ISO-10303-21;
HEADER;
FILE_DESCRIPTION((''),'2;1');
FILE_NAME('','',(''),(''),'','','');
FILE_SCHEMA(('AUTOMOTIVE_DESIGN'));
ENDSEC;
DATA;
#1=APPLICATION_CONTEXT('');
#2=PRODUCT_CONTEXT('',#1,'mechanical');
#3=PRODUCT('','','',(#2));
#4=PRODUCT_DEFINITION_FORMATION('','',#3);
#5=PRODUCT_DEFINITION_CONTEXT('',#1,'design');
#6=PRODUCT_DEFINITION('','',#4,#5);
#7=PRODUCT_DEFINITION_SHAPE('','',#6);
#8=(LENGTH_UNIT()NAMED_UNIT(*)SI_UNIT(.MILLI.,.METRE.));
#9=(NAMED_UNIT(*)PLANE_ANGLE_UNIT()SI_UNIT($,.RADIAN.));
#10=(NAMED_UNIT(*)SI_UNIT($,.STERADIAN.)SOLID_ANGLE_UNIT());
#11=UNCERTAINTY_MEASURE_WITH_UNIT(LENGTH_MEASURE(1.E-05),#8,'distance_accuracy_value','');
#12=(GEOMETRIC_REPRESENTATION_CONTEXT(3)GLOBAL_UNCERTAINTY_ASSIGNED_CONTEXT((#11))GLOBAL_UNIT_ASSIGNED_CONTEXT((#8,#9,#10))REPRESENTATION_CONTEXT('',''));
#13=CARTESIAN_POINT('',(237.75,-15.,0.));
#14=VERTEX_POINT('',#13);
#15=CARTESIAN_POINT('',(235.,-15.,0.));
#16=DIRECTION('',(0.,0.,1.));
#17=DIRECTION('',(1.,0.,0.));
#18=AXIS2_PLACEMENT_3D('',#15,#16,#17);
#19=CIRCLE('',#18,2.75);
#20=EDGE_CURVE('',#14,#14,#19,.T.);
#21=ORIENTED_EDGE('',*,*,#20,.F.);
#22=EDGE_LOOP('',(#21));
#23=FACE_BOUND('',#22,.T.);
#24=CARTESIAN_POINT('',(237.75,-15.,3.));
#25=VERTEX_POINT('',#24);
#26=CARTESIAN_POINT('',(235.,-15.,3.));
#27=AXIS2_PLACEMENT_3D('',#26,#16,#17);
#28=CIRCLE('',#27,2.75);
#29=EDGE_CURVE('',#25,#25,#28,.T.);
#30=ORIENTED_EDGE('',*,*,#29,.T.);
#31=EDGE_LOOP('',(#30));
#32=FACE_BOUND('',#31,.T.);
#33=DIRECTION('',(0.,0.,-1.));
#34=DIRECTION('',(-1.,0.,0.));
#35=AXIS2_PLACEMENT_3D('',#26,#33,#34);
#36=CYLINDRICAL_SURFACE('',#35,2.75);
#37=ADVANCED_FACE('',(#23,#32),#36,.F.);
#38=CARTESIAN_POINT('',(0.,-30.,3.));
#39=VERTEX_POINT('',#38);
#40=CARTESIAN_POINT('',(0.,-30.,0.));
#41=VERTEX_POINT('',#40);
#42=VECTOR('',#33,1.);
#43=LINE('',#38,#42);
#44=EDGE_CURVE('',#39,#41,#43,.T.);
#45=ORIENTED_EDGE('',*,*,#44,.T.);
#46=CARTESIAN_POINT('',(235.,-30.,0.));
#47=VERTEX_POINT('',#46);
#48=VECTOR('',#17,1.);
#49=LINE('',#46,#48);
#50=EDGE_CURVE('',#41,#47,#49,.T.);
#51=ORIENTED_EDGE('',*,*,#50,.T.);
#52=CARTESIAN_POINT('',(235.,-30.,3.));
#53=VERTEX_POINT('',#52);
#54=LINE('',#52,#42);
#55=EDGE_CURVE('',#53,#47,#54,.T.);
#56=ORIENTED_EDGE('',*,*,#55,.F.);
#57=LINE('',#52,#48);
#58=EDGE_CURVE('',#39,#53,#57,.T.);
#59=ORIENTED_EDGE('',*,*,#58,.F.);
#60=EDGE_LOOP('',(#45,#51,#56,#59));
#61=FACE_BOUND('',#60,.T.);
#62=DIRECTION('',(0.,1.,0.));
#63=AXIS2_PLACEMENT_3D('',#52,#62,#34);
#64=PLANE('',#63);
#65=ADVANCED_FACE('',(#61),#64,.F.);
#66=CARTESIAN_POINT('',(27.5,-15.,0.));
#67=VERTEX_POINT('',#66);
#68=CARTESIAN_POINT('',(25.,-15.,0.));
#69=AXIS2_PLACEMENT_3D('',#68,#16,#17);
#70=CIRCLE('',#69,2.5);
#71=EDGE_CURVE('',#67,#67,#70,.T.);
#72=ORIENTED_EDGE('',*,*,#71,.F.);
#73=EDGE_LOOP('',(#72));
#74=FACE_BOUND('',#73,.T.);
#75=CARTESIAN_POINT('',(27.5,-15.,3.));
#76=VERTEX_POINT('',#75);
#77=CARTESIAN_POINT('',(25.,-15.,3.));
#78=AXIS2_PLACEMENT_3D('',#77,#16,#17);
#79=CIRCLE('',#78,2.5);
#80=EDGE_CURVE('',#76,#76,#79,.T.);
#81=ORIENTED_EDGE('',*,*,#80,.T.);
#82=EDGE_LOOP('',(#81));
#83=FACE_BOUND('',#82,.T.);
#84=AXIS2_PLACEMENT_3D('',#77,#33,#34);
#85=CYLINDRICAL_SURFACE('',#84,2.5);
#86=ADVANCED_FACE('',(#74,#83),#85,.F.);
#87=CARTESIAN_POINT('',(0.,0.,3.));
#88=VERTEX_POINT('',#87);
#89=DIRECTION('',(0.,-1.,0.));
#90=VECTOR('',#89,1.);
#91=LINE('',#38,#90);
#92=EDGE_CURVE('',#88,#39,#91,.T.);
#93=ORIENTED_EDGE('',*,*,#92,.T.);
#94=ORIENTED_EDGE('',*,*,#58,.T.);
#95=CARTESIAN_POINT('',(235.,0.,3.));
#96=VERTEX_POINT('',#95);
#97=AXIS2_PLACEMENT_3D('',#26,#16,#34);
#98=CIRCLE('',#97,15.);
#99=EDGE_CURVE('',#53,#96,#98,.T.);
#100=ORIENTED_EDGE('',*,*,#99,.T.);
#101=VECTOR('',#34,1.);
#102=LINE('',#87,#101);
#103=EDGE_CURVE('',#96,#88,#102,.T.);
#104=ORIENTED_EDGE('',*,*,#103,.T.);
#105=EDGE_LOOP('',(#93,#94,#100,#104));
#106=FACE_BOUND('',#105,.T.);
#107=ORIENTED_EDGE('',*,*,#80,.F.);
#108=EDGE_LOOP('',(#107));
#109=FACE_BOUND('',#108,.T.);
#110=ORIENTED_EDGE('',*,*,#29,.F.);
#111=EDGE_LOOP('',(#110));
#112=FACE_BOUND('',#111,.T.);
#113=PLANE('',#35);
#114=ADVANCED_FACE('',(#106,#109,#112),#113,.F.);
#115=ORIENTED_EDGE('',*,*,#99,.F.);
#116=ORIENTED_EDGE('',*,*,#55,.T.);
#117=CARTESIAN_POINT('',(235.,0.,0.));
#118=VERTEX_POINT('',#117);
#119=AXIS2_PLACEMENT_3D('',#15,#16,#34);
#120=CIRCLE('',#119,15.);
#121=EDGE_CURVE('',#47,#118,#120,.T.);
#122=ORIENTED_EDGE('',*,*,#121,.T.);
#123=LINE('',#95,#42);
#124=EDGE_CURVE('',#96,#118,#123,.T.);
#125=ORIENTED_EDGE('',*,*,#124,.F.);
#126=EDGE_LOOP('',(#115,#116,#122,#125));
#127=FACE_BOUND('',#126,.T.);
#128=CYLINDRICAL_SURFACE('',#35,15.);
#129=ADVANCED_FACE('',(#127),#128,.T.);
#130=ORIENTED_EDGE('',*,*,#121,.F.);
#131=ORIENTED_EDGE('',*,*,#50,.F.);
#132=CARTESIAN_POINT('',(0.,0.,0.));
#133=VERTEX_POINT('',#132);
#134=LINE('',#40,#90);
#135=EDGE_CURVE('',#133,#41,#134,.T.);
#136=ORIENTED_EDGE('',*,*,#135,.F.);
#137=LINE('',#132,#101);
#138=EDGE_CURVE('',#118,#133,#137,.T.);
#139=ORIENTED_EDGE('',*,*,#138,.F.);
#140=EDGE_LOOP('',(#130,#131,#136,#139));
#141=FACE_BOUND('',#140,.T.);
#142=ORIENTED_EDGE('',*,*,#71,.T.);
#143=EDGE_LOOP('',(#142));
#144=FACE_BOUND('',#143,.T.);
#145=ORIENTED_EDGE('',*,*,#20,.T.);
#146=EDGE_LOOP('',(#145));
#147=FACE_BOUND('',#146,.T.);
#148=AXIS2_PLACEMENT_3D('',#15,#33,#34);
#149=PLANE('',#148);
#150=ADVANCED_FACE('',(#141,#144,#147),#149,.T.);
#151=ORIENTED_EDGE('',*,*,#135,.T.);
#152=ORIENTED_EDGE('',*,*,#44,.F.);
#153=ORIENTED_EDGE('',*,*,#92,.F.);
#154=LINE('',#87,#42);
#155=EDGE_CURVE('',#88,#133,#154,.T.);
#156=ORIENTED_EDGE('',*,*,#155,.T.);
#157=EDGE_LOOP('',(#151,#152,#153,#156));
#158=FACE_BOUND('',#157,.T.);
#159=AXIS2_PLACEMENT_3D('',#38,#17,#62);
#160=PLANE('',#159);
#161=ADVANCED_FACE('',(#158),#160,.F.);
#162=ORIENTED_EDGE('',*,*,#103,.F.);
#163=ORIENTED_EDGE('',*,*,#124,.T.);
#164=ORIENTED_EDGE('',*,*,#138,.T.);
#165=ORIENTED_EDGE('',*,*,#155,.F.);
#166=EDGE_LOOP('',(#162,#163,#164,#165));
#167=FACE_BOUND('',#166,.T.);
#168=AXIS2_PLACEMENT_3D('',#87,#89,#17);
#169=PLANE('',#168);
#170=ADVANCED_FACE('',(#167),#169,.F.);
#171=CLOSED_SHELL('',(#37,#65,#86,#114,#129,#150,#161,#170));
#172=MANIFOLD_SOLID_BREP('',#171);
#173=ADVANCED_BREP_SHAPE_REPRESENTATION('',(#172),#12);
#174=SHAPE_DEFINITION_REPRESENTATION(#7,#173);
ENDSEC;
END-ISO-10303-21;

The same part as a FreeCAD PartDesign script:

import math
import FreeCAD as App
import Part
import Sketcher

doc = App.newDocument("Part")
body = doc.addObject("PartDesign::Body", "Body")

# Sketch on XY plane
sketch1 = body.newObject("Sketcher::SketchObject", "Sketch")
sketch1.AttachmentSupport = (doc.getObject("XY_Plane"), [""])
sketch1.MapMode = "FlatFace"
sketch1.addGeometry([
    Part.LineSegment(App.Vector(235, 0, 0), App.Vector(0, 0, 0)),  # 0
    Part.LineSegment(App.Vector(0, 0, 0), App.Vector(0, -30, 0)),  # 1
    Part.LineSegment(App.Vector(0, -30, 0), App.Vector(235, -30, 0)),  # 2
    Part.ArcOfCircle(Part.Circle(App.Vector(235, -15, 0), App.Vector(0, 0, 1), 15), math.radians(-90), math.radians(90)),  # 3
    Part.Circle(App.Vector(235, -15, 0), App.Vector(0, 0, 1), 2.8),  # 4
    Part.Circle(App.Vector(25, -15, 0), App.Vector(0, 0, 1), 2.5),  # 5
], False)
sketch1.addConstraint([
    Sketcher.Constraint("Coincident", 0, 2, 1, 1),
    Sketcher.Constraint("Coincident", 1, 2, 2, 1),
    Sketcher.Constraint("Tangent", 2, 2, 3, 1),
    Sketcher.Constraint("Tangent", 3, 2, 0, 1),
    Sketcher.Constraint("Horizontal", 0),
    Sketcher.Constraint("Vertical", 1),
    Sketcher.Constraint("Horizontal", 2),
    Sketcher.Constraint("Coincident", 0, 2, -1, 1),
    Sketcher.Constraint("Coincident", 4, 3, 3, 3),
    Sketcher.Constraint("Horizontal", 4, 3, 5, 3),
    Sketcher.Constraint("Diameter", 5, 5.0),
    Sketcher.Constraint("Radius", 3, 15.0),
    Sketcher.Constraint("Diameter", 4, 5.5),
    Sketcher.Constraint("DistanceX", 0, 2, 0, 1, 235.0),
    Sketcher.Constraint("DistanceX", -1, 1, 5, 3, 25.0),
])
pad1 = body.newObject("PartDesign::Pad", "Pad")
pad1.Profile = sketch1
pad1.Length = 3

doc.recompute()
